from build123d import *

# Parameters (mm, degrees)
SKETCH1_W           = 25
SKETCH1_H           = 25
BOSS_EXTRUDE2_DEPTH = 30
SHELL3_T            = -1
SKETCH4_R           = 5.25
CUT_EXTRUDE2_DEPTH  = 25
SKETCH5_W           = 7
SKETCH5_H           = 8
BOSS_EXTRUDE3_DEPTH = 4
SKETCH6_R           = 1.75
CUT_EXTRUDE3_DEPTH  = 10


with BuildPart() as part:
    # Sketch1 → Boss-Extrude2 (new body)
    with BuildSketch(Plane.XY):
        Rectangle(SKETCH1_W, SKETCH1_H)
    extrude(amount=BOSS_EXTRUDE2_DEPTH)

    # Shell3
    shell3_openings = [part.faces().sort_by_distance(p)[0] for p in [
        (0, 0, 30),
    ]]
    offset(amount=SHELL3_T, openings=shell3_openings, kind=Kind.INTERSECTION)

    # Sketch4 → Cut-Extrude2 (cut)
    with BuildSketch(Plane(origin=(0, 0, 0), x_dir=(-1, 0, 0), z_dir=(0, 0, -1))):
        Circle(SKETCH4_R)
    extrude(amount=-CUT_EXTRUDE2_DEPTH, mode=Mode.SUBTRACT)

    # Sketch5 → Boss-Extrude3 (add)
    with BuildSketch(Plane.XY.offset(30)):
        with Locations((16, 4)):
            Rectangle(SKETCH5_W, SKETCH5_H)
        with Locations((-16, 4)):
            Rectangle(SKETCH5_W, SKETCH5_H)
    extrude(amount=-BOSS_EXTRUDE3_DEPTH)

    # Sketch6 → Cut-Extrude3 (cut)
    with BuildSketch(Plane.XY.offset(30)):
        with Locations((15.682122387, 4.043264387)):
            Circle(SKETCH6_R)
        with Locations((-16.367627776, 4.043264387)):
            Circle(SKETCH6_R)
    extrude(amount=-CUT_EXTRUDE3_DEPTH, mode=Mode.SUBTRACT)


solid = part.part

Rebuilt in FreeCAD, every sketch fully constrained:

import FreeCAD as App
import Part
import Sketcher

V = App.Vector
Q = App.Units.Quantity


def faces_at(feature, points):
    """Names of the faces that lie closest to the given points."""
    faces = feature.Shape.Faces
    near = lambda p: min(range(len(faces)), key=lambda i: faces[i].distToShape(Part.Vertex(*p))[0])
    return sorted({f"Face{near(p) + 1}" for p in points})


def add_polygon(sketch, points):
    """Adds a closed chain of lines whose ends are joined by coincident constraints."""
    first, n = sketch.GeometryCount, len(points)
    for a, b in zip(points, points[1:] + points[:1]):
        sketch.addGeometry(Part.LineSegment(App.Vector(*a, 0), App.Vector(*b, 0)), False)
    for i in range(n):
        sketch.addConstraint(Sketcher.Constraint("Coincident", first + i, 2, first + (i + 1) % n, 1))

doc = App.newDocument("Part")
body = doc.addObject("PartDesign::Body", "Body")

# Sketch on XY plane
sketch1 = doc.addObject("Sketcher::SketchObject", "Sketch")
body.addObject(sketch1)
sketch1.AttachmentSupport = (doc.XY_Plane, [""])
sketch1.MapMode = "FlatFace"
add_polygon(sketch1, [(-12, 12), (-12, -12), (12, -12), (12, 12)])  # lines 0-3
sketch1.addConstraint([
    Sketcher.Constraint("Vertical", 0),
    Sketcher.Constraint("Horizontal", 1),
    Sketcher.Constraint("Vertical", 2),
    Sketcher.Constraint("Horizontal", 3),
    Sketcher.Constraint("Symmetric", 0, 2, 2, 2, -1, 1),
    Sketcher.Constraint("Equal", 3, 0),
    Sketcher.Constraint("DistanceX", 1, 1, 1, 2, Q("25 mm")),
])
pad1 = doc.addObject("PartDesign::Pad", "Pad")
body.addObject(pad1)
pad1.Profile = sketch1
pad1.Length = 30
doc.recompute()

thickness = doc.addObject("PartDesign::Thickness", "Thickness")
body.addObject(thickness)
thickness.Base = (pad1, faces_at(pad1, [(0, 0, 30)]))
thickness.Value = 1
thickness.Reversed = True
thickness.Join = "Intersection"

# Sketch on XY plane
sketch2 = doc.addObject("Sketcher::SketchObject", "Sketch001")
body.addObject(sketch2)
sketch2.AttachmentSupport = (doc.XY_Plane, [""])
sketch2.MapMode = "FlatFace"
sketch2.addGeometry(Part.Circle(V(0, 0, 0), V(0, 0, 1), 5), False)
sketch2.addConstraint([
    Sketcher.Constraint("Coincident", 0, 3, -1, 1),
    Sketcher.Constraint("Diameter", 0, Q("10.5 mm")),
])
pocket1 = doc.addObject("PartDesign::Pocket", "Pocket")
body.addObject(pocket1)
pocket1.Profile = sketch2
pocket1.Length = 25
pocket1.Reversed = True

# Sketch on XY plane
sketch3 = doc.addObject("Sketcher::SketchObject", "Sketch002")
body.addObject(sketch3)
sketch3.AttachmentSupport = (doc.XY_Plane, [""])
sketch3.MapMode = "FlatFace"
sketch3.AttachmentOffset = App.Placement(V(0, 0, 30), App.Rotation())
add_polygon(sketch3, [(12, 8), (12, 0), (20, 0), (20, 8)])  # lines 0-3
add_polygon(sketch3, [(-20, 8), (-20, 0), (-12, 0), (-12, 8)])  # lines 4-7
sketch3.addConstraint([
    Sketcher.Constraint("Vertical", 0),
    Sketcher.Constraint("Horizontal", 1),
    Sketcher.Constraint("Vertical", 2),
    Sketcher.Constraint("Horizontal", 3),
    Sketcher.Constraint("Vertical", 4),
    Sketcher.Constraint("Horizontal", 5),
    Sketcher.Constraint("Vertical", 6),
    Sketcher.Constraint("Horizontal", 7),
    Sketcher.Constraint("Symmetric", 1, 2, 4, 2, -1, 1),
    Sketcher.Constraint("Symmetric", 0, 2, 5, 2, -2),
    Sketcher.Constraint("Horizontal", 3, 2, 6, 2),
    Sketcher.Constraint("DistanceX", 1, 1, 1, 2, Q("7 mm")),
    Sketcher.Constraint("DistanceY", 0, 2, 0, 1, Q("8 mm")),
    Sketcher.Constraint("DistanceX", 4, 2, 0, 2, Q("32 mm")),
])
pad2 = doc.addObject("PartDesign::Pad", "Pad001")
body.addObject(pad2)
pad2.Profile = sketch3
pad2.Length = 4
pad2.Reversed = True

# Sketch on XY plane
sketch4 = doc.addObject("Sketcher::SketchObject", "Sketch003")
body.addObject(sketch4)
sketch4.AttachmentSupport = (doc.XY_Plane, [""])
sketch4.MapMode = "FlatFace"
sketch4.AttachmentOffset = App.Placement(V(0, 0, 30), App.Rotation())
sketch4.addGeometry([
    Part.Circle(V(15.7, 4, 0), V(0, 0, 1), 1.8),
    Part.Circle(V(-16.4, 4, 0), V(0, 0, 1), 1.8),
], False)
sketch4.addConstraint([
    Sketcher.Constraint("Equal", 0, 1),
    Sketcher.Constraint("Horizontal", 0, 3, 1, 3),
    Sketcher.Constraint("Diameter", 0, Q("3.5 mm")),
    Sketcher.Constraint("DistanceX", 1, 3, 0, 3, Q("32.04975 mm")),
    Sketcher.Constraint("DistanceX", -1, 1, 0, 3, Q("15.682122 mm")),
    Sketcher.Constraint("DistanceY", -1, 1, 0, 3, Q("4.043264 mm")),
])
pocket2 = doc.addObject("PartDesign::Pocket", "Pocket001")
body.addObject(pocket2)
pocket2.Profile = sketch4
pocket2.Length = 10

doc.recompute()
